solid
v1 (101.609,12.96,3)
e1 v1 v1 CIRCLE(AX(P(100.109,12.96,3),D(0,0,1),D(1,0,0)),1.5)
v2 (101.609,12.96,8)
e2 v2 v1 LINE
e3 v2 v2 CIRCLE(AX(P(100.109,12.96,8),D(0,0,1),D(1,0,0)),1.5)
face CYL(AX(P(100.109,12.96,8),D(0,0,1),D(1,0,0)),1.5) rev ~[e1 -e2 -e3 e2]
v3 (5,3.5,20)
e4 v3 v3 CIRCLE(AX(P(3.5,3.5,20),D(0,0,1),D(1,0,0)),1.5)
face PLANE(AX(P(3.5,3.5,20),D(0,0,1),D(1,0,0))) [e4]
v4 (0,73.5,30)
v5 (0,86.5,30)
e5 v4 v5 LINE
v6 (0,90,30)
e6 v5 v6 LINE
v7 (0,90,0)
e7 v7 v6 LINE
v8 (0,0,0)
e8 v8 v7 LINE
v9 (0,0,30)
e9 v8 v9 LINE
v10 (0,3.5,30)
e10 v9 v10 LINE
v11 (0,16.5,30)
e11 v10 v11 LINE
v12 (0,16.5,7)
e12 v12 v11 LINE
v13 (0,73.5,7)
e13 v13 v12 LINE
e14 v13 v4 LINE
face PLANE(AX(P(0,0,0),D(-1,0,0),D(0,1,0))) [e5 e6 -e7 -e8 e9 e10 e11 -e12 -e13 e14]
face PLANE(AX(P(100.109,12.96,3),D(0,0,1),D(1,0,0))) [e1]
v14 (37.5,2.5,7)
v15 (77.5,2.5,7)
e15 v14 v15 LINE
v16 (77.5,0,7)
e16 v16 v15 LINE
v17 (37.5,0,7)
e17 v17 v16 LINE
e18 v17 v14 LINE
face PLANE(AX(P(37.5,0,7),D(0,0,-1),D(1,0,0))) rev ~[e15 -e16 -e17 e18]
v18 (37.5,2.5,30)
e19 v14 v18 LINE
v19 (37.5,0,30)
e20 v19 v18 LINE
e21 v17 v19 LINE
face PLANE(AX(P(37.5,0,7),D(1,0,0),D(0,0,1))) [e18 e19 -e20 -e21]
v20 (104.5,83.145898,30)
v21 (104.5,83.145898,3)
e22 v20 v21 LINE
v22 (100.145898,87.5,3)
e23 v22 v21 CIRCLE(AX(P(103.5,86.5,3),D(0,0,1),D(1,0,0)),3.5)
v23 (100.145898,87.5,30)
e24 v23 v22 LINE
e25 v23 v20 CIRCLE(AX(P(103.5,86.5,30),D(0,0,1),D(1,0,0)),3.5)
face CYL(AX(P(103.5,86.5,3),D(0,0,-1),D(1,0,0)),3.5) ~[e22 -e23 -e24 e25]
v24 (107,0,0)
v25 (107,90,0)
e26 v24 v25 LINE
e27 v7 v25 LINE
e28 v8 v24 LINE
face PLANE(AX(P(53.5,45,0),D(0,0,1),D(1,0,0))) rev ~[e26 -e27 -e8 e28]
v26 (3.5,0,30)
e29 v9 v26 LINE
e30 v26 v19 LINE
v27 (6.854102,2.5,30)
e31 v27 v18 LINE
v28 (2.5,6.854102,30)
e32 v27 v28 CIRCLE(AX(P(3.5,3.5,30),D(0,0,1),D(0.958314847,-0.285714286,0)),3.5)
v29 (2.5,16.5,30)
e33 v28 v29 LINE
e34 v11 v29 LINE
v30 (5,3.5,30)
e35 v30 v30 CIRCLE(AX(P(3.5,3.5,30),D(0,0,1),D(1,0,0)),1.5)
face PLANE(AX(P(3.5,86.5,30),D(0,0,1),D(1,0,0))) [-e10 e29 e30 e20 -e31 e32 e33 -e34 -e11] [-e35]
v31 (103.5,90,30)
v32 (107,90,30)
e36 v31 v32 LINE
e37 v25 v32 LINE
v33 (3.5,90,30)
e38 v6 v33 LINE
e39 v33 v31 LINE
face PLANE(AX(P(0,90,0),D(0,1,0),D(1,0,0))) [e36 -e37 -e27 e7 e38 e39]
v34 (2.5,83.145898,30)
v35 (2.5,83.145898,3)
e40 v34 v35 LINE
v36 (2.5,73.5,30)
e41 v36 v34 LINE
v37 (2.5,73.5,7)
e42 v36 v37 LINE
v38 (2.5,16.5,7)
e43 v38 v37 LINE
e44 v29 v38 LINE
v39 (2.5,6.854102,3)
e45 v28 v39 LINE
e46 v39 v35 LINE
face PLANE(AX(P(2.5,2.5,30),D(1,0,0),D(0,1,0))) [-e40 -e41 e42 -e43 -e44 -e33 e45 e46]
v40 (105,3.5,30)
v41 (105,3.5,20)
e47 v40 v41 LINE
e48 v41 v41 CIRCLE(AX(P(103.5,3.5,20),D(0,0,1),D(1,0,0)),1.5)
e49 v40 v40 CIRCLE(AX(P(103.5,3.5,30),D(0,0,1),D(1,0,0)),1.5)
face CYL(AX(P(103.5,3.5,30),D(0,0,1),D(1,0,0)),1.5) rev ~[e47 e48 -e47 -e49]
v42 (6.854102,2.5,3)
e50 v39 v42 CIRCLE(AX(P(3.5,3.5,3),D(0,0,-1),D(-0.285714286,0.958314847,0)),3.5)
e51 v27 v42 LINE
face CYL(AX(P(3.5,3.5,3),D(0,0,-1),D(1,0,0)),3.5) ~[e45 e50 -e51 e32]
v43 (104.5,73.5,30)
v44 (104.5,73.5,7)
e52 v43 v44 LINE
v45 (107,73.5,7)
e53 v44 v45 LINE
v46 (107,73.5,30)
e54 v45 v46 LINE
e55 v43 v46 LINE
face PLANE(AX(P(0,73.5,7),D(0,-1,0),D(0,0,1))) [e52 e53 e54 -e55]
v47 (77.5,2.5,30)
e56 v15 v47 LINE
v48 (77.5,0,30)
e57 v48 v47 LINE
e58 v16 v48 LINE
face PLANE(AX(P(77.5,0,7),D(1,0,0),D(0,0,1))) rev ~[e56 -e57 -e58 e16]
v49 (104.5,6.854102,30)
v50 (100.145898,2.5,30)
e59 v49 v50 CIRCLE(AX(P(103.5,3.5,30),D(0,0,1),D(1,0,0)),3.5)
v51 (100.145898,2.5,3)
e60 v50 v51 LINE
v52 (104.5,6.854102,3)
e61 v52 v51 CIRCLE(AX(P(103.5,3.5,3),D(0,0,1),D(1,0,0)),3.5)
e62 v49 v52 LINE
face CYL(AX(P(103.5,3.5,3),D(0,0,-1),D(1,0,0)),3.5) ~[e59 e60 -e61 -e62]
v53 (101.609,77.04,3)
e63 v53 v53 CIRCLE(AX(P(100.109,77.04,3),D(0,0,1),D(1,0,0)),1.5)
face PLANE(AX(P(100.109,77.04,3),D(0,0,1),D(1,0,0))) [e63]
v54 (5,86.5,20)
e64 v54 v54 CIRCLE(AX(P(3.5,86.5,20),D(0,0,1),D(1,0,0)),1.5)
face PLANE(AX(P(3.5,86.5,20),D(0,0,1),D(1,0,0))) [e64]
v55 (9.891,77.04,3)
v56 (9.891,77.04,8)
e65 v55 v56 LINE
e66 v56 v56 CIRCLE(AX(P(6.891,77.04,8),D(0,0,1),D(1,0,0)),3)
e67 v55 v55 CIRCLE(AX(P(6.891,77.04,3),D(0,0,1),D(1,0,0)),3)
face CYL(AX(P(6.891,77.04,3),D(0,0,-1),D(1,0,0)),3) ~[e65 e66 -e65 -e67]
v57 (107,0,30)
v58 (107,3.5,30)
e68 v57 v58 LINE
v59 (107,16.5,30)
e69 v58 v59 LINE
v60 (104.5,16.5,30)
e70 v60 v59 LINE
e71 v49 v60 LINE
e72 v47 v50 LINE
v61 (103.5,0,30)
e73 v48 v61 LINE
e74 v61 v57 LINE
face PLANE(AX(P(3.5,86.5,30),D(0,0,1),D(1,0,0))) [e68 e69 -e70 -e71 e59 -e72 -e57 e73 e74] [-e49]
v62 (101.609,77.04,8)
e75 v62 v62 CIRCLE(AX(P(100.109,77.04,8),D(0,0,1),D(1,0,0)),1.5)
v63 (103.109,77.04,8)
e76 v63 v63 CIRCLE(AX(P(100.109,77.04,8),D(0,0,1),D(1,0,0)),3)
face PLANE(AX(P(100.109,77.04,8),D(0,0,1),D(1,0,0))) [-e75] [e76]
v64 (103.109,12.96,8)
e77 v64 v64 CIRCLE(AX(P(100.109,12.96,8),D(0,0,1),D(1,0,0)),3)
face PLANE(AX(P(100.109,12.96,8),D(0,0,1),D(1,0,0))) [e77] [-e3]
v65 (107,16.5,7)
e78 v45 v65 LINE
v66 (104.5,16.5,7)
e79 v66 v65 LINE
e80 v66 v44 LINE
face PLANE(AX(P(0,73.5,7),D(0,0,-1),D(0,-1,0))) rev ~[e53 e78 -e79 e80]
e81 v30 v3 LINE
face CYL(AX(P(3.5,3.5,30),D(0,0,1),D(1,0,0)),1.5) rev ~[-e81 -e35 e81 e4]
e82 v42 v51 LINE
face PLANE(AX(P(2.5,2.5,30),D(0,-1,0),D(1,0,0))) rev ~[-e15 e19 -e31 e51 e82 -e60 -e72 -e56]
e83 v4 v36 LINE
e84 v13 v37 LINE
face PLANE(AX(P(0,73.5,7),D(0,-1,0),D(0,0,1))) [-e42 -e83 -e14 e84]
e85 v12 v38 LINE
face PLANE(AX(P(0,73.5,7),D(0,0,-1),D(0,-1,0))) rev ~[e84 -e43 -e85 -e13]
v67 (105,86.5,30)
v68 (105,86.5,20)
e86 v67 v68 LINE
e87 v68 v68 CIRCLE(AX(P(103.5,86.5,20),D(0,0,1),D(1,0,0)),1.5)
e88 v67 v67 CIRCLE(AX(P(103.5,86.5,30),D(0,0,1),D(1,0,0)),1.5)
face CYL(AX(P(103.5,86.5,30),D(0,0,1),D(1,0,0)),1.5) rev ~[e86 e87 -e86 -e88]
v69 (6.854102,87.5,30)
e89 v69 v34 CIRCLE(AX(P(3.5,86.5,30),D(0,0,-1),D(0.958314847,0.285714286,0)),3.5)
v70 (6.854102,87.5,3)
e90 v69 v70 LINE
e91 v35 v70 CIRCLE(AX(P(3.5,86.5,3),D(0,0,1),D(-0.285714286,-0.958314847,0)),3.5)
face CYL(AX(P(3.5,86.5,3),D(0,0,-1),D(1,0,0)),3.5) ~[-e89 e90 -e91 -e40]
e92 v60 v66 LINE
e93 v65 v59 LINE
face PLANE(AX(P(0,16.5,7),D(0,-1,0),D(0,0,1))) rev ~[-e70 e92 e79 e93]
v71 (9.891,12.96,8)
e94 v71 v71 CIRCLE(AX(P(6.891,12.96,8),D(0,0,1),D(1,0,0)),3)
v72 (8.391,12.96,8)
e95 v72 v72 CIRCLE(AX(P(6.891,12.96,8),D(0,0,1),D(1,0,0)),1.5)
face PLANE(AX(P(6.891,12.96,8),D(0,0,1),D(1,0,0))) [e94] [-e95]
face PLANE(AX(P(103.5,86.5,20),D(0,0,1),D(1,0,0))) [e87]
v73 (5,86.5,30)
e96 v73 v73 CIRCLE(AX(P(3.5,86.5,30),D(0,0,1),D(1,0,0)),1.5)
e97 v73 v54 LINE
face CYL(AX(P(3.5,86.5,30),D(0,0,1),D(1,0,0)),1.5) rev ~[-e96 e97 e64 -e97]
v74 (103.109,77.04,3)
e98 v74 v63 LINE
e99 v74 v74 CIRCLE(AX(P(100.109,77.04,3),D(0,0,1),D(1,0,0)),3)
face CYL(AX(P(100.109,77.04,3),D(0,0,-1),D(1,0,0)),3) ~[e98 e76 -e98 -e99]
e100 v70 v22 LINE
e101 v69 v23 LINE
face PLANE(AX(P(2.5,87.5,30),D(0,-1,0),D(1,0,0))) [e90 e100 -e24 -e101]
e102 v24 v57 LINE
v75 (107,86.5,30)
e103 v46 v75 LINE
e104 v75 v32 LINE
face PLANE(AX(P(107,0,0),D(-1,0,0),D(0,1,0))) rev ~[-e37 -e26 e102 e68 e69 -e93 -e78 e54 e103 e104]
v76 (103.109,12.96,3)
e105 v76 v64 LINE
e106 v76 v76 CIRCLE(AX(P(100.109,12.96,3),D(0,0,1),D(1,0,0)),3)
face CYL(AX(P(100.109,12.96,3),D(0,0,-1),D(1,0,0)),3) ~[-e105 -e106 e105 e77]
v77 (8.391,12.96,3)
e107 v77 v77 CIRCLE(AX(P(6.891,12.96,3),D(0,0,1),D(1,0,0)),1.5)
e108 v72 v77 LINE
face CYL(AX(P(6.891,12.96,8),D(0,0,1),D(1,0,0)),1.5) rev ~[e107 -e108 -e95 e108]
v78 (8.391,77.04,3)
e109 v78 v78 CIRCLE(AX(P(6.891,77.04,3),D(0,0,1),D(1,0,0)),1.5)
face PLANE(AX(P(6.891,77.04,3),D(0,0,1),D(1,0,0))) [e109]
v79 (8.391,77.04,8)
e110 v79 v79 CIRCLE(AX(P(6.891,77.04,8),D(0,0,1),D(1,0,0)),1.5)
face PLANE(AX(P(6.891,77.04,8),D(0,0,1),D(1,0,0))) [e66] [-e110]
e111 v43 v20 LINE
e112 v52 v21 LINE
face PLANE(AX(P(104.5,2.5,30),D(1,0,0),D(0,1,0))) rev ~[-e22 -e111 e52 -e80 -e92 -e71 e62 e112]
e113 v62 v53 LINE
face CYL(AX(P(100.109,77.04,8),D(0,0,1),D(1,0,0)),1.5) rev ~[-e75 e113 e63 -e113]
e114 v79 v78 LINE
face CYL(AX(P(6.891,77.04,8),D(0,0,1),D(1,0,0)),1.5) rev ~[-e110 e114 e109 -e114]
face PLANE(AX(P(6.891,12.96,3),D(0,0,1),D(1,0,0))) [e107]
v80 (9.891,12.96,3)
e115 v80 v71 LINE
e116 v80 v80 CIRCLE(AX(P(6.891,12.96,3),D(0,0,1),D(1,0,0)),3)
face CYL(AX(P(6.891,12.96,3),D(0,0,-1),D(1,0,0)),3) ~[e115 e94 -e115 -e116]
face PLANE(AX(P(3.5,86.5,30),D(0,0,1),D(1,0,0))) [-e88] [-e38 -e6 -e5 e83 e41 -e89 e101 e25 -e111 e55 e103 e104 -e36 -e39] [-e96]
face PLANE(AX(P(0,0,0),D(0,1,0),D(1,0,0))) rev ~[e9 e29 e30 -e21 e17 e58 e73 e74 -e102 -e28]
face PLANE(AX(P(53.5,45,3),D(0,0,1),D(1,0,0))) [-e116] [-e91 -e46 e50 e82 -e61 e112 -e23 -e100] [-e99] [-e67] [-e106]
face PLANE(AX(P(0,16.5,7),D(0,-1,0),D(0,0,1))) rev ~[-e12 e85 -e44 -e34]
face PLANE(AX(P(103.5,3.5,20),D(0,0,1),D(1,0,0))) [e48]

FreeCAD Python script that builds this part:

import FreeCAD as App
import Part
import Sketcher


def add_polygon(sketch, points):
    """Adds a closed chain of lines whose ends are joined by coincident constraints."""
    first, n = sketch.GeometryCount, len(points)
    for a, b in zip(points, points[1:] + points[:1]):
        sketch.addGeometry(Part.LineSegment(App.Vector(*a, 0), App.Vector(*b, 0)), False)
    for i in range(n):
        sketch.addConstraint(Sketcher.Constraint("Coincident", first + i, 2, first + (i + 1) % n, 1))

doc = App.newDocument("Part")
body = doc.addObject("PartDesign::Body", "Body")

sketch1 = body.newObject("Sketcher::SketchObject", "Sketch")
sketch1.AttachmentSupport = (doc.getObject("XY_Plane"), [""])
sketch1.MapMode = "FlatFace"
add_polygon(sketch1, [(0, 90), (0, 0), (107, 0), (107, 90)])
sketch1.addConstraint([
    Sketcher.Constraint("Vertical", 0),
    Sketcher.Constraint("Horizontal", 1),
    Sketcher.Constraint("Vertical", 2),
    Sketcher.Constraint("Horizontal", 3),
    Sketcher.Constraint("Coincident", 0, 2, -1, 1),
    Sketcher.Constraint("DistanceX", 1, 1, 1, 2, 107.0),
    Sketcher.Constraint("DistanceY", 0, 2, 0, 1, 90.0),
])
pad1 = body.newObject("PartDesign::Pad", "Pad")
pad1.Profile = sketch1
pad1.Length = 30

sketch2 = body.newObject("Sketcher::SketchObject", "Sketch001")
sketch2.AttachmentSupport = (doc.getObject("XY_Plane"), [""])
sketch2.MapMode = "FlatFace"
sketch2.AttachmentOffset = App.Placement(App.Vector(0, 0, 30), App.Rotation())
add_polygon(sketch2, [(2, 88), (2, 2), (104, 2), (104, 88)])
sketch2.addConstraint([
    Sketcher.Constraint("Vertical", 0),
    Sketcher.Constraint("Horizontal", 1),
    Sketcher.Constraint("Vertical", 2),
    Sketcher.Constraint("Horizontal", 3),
    Sketcher.Constraint("DistanceX", 1, 1, 1, 2, 102.0),
    Sketcher.Constraint("DistanceY", 0, 2, 0, 1, 85.0),
    Sketcher.Constraint("DistanceX", -1, 1, 0, 2, 2.5),
    Sketcher.Constraint("DistanceY", -1, 1, 0, 2, 2.5),
])
pocket1 = body.newObject("PartDesign::Pocket", "Pocket")
pocket1.Profile = sketch2
pocket1.Length = 27

sketch3 = body.newObject("Sketcher::SketchObject", "Sketch002")
sketch3.AttachmentSupport = (doc.getObject("XY_Plane"), [""])
sketch3.MapMode = "FlatFace"
sketch3.AttachmentOffset = App.Placement(App.Vector(0, 0, 3), App.Rotation())
sketch3.addGeometry([
    Part.Circle(App.Vector(3.5, 86.5, 0), App.Vector(0, 0, 1), 3.5),
    Part.Circle(App.Vector(3.5, 3.5, 0), App.Vector(0, 0, 1), 3.5),
    Part.Circle(App.Vector(103.5, 86.5, 0), App.Vector(0, 0, 1), 3.5),
    Part.Circle(App.Vector(103.5, 3.5, 0), App.Vector(0, 0, 1), 3.5),
], False)
sketch3.addConstraint([
    Sketcher.Constraint("Equal", 0, 1),
    Sketcher.Constraint("Equal", 1, 2),
    Sketcher.Constraint("Equal", 2, 3),
    Sketcher.Constraint("Horizontal", 0, 3, 2, 3),
    Sketcher.Constraint("Horizontal", 1, 3, 3, 3),
    Sketcher.Constraint("Vertical", 0, 3, 1, 3),
    Sketcher.Constraint("Vertical", 2, 3, 3, 3),
    Sketcher.Constraint("Diameter", 0, 7.0),
    Sketcher.Constraint("DistanceY", 1, 3, 0, 3, 83.0),
    Sketcher.Constraint("DistanceX", 0, 3, 2, 3, 100.0),
    Sketcher.Constraint("DistanceX", -1, 1, 0, 3, 3.5),
    Sketcher.Constraint("DistanceY", -1, 1, 0, 3, 86.5),
])
pad2 = body.newObject("PartDesign::Pad", "Pad001")
pad2.Profile = sketch3
pad2.Length = 27

sketch4 = body.newObject("Sketcher::SketchObject", "Sketch003")
sketch4.AttachmentSupport = (doc.getObject("XY_Plane"), [""])
sketch4.MapMode = "FlatFace"
sketch4.AttachmentOffset = App.Placement(App.Vector(0, 0, 3), App.Rotation())
sketch4.addGeometry([
    Part.Circle(App.Vector(6.9, 77, 0), App.Vector(0, 0, 1), 3),
    Part.Circle(App.Vector(6.9, 13, 0), App.Vector(0, 0, 1), 3),
    Part.Circle(App.Vector(100.1, 77, 0), App.Vector(0, 0, 1), 3),
    Part.Circle(App.Vector(100.1, 13, 0), App.Vector(0, 0, 1), 3),
], False)
sketch4.addConstraint([
    Sketcher.Constraint("Equal", 0, 1),
    Sketcher.Constraint("Equal", 1, 2),
    Sketcher.Constraint("Equal", 2, 3),
    Sketcher.Constraint("Horizontal", 0, 3, 2, 3),
    Sketcher.Constraint("Horizontal", 1, 3, 3, 3),
    Sketcher.Constraint("Vertical", 0, 3, 1, 3),
    Sketcher.Constraint("Vertical", 2, 3, 3, 3),
    Sketcher.Constraint("Diameter", 0, 6.0),
    Sketcher.Constraint("DistanceY", -1, 1, 0, 3, 77.04),
    Sketcher.Constraint("DistanceY", -1, 1, 1, 3, 12.96),
    Sketcher.Constraint("DistanceX", -1, 1, 0, 3, 6.891),
    Sketcher.Constraint("DistanceX", -1, 1, 2, 3, 100.109),
])
pad3 = body.newObject("PartDesign::Pad", "Pad002")
pad3.Profile = sketch4
pad3.Length = 5

sketch5 = body.newObject("Sketcher::SketchObject", "Sketch004")
sketch5.AttachmentSupport = (doc.getObject("XY_Plane"), [""])
sketch5.MapMode = "FlatFace"
sketch5.AttachmentOffset = App.Placement(App.Vector(0, 0, 8), App.Rotation())
sketch5.addGeometry([
    Part.Circle(App.Vector(6.9, 77, 0), App.Vector(0, 0, 1), 1.5),
    Part.Circle(App.Vector(100.1, 77, 0), App.Vector(0, 0, 1), 1.5),
    Part.Circle(App.Vector(100.1, 13, 0), App.Vector(0, 0, 1), 1.5),
    Part.Circle(App.Vector(6.9, 13, 0), App.Vector(0, 0, 1), 1.5),
], False)
sketch5.addConstraint([
    Sketcher.Constraint("Equal", 0, 1),
    Sketcher.Constraint("Equal", 1, 2),
    Sketcher.Constraint("Equal", 2, 3),
    Sketcher.Constraint("Horizontal", 0, 3, 1, 3),
    Sketcher.Constraint("Horizontal", 2, 3, 3, 3),
    Sketcher.Constraint("Vertical", 1, 3, 2, 3),
    Sketcher.Constraint("Vertical", 0, 3, 3, 3),
    Sketcher.Constraint("Diameter", 0, 3.0),
    Sketcher.Constraint("DistanceY", -1, 1, 0, 3, 77.04),
    Sketcher.Constraint("DistanceY", -1, 1, 2, 3, 12.96),
    Sketcher.Constraint("DistanceX", -1, 1, 0, 3, 6.891),
    Sketcher.Constraint("DistanceX", -1, 1, 1, 3, 100.109),
])
pocket2 = body.newObject("PartDesign::Pocket", "Pocket001")
pocket2.Profile = sketch5
pocket2.Length = 5

sketch6 = body.newObject("Sketcher::SketchObject", "Sketch005")
sketch6.AttachmentSupport = (doc.getObject("XY_Plane"), [""])
sketch6.MapMode = "FlatFace"
sketch6.AttachmentOffset = App.Placement(App.Vector(0, 0, 30), App.Rotation())
sketch6.addGeometry([
    Part.Circle(App.Vector(3.5, 86.5, 0), App.Vector(0, 0, 1), 1.5),
    Part.Circle(App.Vector(103.5, 86.5, 0), App.Vector(0, 0, 1), 1.5),
    Part.Circle(App.Vector(103.5, 3.5, 0), App.Vector(0, 0, 1), 1.5),
    Part.Circle(App.Vector(3.5, 3.5, 0), App.Vector(0, 0, 1), 1.5),
], False)
sketch6.addConstraint([
    Sketcher.Constraint("Equal", 0, 1),
    Sketcher.Constraint("Equal", 1, 2),
    Sketcher.Constraint("Equal", 2, 3),
    Sketcher.Constraint("Horizontal", 0, 3, 1, 3),
    Sketcher.Constraint("Horizontal", 2, 3, 3, 3),
    Sketcher.Constraint("Vertical", 1, 3, 2, 3),
    Sketcher.Constraint("Vertical", 0, 3, 3, 3),
    Sketcher.Constraint("Diameter", 0, 3.0),
    Sketcher.Constraint("DistanceX", 0, 3, 1, 3, 100.0),
    Sketcher.Constraint("DistanceY", 2, 3, 1, 3, 83.0),
    Sketcher.Constraint("DistanceX", -1, 1, 0, 3, 3.5),
    Sketcher.Constraint("DistanceY", -1, 1, 0, 3, 86.5),
])
pocket3 = body.newObject("PartDesign::Pocket", "Pocket002")
pocket3.Profile = sketch6
pocket3.Length = 10

sketch7 = body.newObject("Sketcher::SketchObject", "Sketch006")
sketch7.AttachmentSupport = (doc.getObject("YZ_Plane"), [""])
sketch7.MapMode = "FlatFace"
add_polygon(sketch7, [(74, 30), (74, 7), (16, 7), (16, 30)])
sketch7.addConstraint([
    Sketcher.Constraint("Vertical", 0),
    Sketcher.Constraint("Horizontal", 1),
    Sketcher.Constraint("Vertical", 2),
    Sketcher.Constraint("Horizontal", 3),
    Sketcher.Constraint("DistanceX", 1, 2, 1, 1, 57.0),
    Sketcher.Constraint("DistanceY", 0, 2, 0, 1, 23.0),
    Sketcher.Constraint("DistanceY", -1, 1, 0, 2, 7.0),
    Sketcher.Constraint("DistanceX", -1, 1, 0, 2, 73.5),
])
pocket4 = body.newObject("PartDesign::Pocket", "Pocket003")
pocket4.Profile = sketch7
pocket4.Type = "ThroughAll"
pocket4.Reversed = True

sketch8 = body.newObject("Sketcher::SketchObject", "Sketch007")
sketch8.AttachmentSupport = (doc.getObject("XZ_Plane"), [""])
sketch8.MapMode = "FlatFace"
add_polygon(sketch8, [(38, 30), (38, 7), (78, 7), (78, 30)])
sketch8.addConstraint([
    Sketcher.Constraint("Vertical", 0),
    Sketcher.Constraint("Horizontal", 1),
    Sketcher.Constraint("Vertical", 2),
    Sketcher.Constraint("Horizontal", 3),
    Sketcher.Constraint("DistanceX", 1, 1, 1, 2, 40.0),
    Sketcher.Constraint("DistanceY", 0, 2, 0, 1, 23.0),
    Sketcher.Constraint("DistanceY", -1, 1, 0, 2, 7.0),
    Sketcher.Constraint("DistanceX", -1, 1, 0, 2, 37.5),
])
pocket5 = body.newObject("PartDesign::Pocket", "Pocket004")
pocket5.Profile = sketch8
pocket5.Length = 2.5

doc.recompute()
